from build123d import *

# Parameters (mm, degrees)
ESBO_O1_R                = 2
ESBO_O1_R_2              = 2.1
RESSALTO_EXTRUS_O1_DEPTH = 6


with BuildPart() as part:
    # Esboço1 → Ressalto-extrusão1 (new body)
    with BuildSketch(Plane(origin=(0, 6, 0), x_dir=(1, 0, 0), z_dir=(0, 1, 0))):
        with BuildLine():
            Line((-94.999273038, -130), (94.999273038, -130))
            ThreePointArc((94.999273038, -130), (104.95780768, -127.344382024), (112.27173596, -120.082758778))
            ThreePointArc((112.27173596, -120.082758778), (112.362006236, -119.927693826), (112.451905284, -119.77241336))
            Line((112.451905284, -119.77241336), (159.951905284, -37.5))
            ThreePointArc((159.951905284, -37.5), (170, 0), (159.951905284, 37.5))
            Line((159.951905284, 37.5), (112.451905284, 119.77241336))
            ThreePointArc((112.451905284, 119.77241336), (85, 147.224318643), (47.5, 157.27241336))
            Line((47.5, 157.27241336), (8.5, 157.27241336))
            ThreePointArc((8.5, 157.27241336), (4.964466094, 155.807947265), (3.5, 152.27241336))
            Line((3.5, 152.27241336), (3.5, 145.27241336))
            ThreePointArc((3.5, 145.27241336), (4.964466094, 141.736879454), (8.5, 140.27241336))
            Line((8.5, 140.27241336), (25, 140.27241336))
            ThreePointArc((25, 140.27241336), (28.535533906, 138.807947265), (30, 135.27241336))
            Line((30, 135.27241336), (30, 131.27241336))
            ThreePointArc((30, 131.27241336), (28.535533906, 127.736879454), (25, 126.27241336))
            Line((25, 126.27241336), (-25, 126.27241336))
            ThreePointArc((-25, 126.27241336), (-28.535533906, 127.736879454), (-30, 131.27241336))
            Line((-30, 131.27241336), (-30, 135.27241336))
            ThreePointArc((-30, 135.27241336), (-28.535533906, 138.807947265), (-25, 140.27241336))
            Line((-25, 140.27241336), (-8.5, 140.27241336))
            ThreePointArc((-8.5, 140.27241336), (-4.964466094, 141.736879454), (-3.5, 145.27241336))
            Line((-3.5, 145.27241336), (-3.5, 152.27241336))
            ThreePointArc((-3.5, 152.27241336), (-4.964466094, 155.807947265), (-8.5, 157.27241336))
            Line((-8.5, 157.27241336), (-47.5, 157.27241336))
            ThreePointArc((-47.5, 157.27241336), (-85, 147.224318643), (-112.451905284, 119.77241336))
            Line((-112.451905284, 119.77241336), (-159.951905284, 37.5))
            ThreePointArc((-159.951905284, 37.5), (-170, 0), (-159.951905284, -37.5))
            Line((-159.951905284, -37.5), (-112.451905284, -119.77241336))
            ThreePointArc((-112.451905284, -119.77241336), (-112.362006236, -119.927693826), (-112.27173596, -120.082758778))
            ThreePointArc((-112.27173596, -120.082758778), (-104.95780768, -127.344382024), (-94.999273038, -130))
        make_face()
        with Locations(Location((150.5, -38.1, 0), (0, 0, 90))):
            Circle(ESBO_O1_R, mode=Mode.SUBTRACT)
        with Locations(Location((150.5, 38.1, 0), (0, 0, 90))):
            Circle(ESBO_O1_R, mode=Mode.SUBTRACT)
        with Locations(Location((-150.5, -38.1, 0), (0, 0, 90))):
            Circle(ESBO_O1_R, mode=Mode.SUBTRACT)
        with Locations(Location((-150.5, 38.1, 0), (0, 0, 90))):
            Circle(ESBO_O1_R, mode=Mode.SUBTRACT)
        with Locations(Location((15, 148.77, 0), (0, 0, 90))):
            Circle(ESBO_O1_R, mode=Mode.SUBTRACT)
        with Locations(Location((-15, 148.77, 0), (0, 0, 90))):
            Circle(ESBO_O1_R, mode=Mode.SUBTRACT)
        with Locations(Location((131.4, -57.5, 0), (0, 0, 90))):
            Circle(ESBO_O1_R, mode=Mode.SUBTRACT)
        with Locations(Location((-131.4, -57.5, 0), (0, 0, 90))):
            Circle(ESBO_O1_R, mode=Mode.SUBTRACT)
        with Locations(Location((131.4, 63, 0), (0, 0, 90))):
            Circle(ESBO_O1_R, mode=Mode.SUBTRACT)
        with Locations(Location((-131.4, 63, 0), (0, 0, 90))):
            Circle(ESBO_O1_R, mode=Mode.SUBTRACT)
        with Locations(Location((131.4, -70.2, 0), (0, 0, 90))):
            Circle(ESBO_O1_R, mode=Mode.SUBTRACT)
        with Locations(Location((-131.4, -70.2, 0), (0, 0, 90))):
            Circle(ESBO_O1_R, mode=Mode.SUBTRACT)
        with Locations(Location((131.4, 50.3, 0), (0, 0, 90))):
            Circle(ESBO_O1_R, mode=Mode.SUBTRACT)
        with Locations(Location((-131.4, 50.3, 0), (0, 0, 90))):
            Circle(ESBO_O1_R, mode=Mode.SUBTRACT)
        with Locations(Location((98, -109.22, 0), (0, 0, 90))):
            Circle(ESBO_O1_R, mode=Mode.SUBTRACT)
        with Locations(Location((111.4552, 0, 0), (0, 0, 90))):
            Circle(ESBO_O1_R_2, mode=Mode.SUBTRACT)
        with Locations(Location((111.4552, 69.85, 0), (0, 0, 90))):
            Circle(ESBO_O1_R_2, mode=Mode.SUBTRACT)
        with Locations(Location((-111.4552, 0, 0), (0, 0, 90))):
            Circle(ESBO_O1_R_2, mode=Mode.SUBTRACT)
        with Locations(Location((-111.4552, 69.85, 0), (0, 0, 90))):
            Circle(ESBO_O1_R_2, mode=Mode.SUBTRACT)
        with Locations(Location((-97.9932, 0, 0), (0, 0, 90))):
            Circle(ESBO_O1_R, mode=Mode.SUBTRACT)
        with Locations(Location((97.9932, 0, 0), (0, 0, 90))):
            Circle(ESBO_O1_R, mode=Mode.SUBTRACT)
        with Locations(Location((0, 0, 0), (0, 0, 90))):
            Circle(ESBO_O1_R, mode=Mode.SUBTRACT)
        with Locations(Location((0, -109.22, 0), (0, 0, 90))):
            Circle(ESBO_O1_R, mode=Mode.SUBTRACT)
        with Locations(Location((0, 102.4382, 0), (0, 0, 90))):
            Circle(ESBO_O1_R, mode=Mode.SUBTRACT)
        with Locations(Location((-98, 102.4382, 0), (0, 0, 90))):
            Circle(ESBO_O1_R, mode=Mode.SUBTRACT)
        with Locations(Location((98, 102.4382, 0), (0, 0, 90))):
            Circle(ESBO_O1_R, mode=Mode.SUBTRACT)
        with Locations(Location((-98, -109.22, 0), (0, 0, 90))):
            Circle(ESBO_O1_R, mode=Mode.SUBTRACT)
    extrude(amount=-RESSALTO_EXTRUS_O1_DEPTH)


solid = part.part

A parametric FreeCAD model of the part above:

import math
import FreeCAD as App
import Part
import Sketcher
from FreeCAD import Vector
Q = App.Units.Quantity

doc = App.newDocument("Part")
body = doc.addObject("PartDesign::Body", "Body")

# Sketch on XZ plane
sketch1 = body.newObject("Sketcher::SketchObject", "Sketch")
sketch1.AttachmentSupport = (doc.getObject("XZ_Plane"), [""])
sketch1.MapMode = "FlatFace"
sketch1.AttachmentOffset = App.Placement(Vector(0, 0, -6), App.Rotation())
sketch1.addGeometry([
    Part.LineSegment(Vector(-95, 130, 0), Vector(95, 130, 0)),  # 0
    Part.ArcOfCircle(Part.Circle(Vector(95, 110, 0), Vector(0, 0, 1), 20), math.radians(30), math.radians(90)),  # 1
    Part.ArcOfCircle(Part.Circle(Vector(47.5, 82.27, 0), Vector(0, 0, 1), 75), math.radians(30), math.radians(30.27)),  # 2
    Part.LineSegment(Vector(112.45, 119.77, 0), Vector(159.95, 37.5, 0)),  # 3
    Part.ArcOfCircle(Part.Circle(Vector(95, 0, 0), Vector(0, 0, 1), 75), math.radians(-30), math.radians(30)),  # 4
    Part.LineSegment(Vector(159.95, -37.5, 0), Vector(112.45, -119.77, 0)),  # 5
    Part.ArcOfCircle(Part.Circle(Vector(47.5, -82.27, 0), Vector(0, 0, 1), 75), math.radians(-90), math.radians(-30)),  # 6
    Part.LineSegment(Vector(47.5, -157.27, 0), Vector(8.5, -157.27, 0)),  # 7
    Part.ArcOfCircle(Part.Circle(Vector(8.5, -152.27, 0), Vector(0, 0, 1), 5), math.radians(-180), math.radians(-90)),  # 8
    Part.LineSegment(Vector(3.5, -152.27, 0), Vector(3.5, -145.27, 0)),  # 9
    Part.ArcOfCircle(Part.Circle(Vector(8.5, -145.27, 0), Vector(0, 0, 1), 5), math.radians(90), math.radians(180)),  # 10
    Part.LineSegment(Vector(8.5, -140.27, 0), Vector(25, -140.27, 0)),  # 11
    Part.ArcOfCircle(Part.Circle(Vector(25, -135.27, 0), Vector(0, 0, 1), 5), math.radians(-90), math.radians(0)),  # 12
    Part.LineSegment(Vector(30, -135.27, 0), Vector(30, -131.27, 0)),  # 13
    Part.ArcOfCircle(Part.Circle(Vector(25, -131.27, 0), Vector(0, 0, 1), 5), math.radians(0), math.radians(90)),  # 14
    Part.LineSegment(Vector(25, -126.27, 0), Vector(-25, -126.27, 0)),  # 15
    Part.ArcOfCircle(Part.Circle(Vector(-25, -131.27, 0), Vector(0, 0, 1), 5), math.radians(90), math.radians(180)),  # 16
    Part.LineSegment(Vector(-30, -131.27, 0), Vector(-30, -135.27, 0)),  # 17
    Part.ArcOfCircle(Part.Circle(Vector(-25, -135.27, 0), Vector(0, 0, 1), 5), math.radians(-180), math.radians(-90)),  # 18
    Part.LineSegment(Vector(-25, -140.27, 0), Vector(-8.5, -140.27, 0)),  # 19
    Part.ArcOfCircle(Part.Circle(Vector(-8.5, -145.27, 0), Vector(0, 0, 1), 5), math.radians(0), math.radians(90)),  # 20
    Part.LineSegment(Vector(-3.5, -145.27, 0), Vector(-3.5, -152.27, 0)),  # 21
    Part.ArcOfCircle(Part.Circle(Vector(-8.5, -152.27, 0), Vector(0, 0, 1), 5), math.radians(-90), math.radians(0)),  # 22
    Part.LineSegment(Vector(-8.5, -157.27, 0), Vector(-47.5, -157.27, 0)),  # 23
    Part.ArcOfCircle(Part.Circle(Vector(-47.5, -82.27, 0), Vector(0, 0, 1), 75), math.radians(-150), math.radians(-90)),  # 24
    Part.LineSegment(Vector(-112.45, -119.77, 0), Vector(-159.95, -37.5, 0)),  # 25
    Part.ArcOfCircle(Part.Circle(Vector(-95, 0, 0), Vector(0, 0, 1), 75), math.radians(150), math.radians(210)),  # 26
    Part.LineSegment(Vector(-159.95, 37.5, 0), Vector(-112.45, 119.77, 0)),  # 27
    Part.ArcOfCircle(Part.Circle(Vector(-47.5, 82.27, 0), Vector(0, 0, 1), 75), math.radians(149.73), math.radians(150)),  # 28
    Part.ArcOfCircle(Part.Circle(Vector(-95, 110, 0), Vector(0, 0, 1), 20), math.radians(90), math.radians(150)),  # 29
    Part.Circle(Vector(-98, 109.22, 0), Vector(0, 0, 1), 2),  # 30
    Part.Circle(Vector(-131.4, 70.2, 0), Vector(0, 0, 1), 2),  # 31
    Part.Circle(Vector(-131.4, 57.5, 0), Vector(0, 0, 1), 2),  # 32
    Part.Circle(Vector(-150.5, 38.1, 0), Vector(0, 0, 1), 2),  # 33
    Part.Circle(Vector(-111.46, 0, 0), Vector(0, 0, 1), 2.1),  # 34
    Part.Circle(Vector(-97.99, 0, 0), Vector(0, 0, 1), 2),  # 35
    Part.Circle(Vector(0, 109.22, 0), Vector(0, 0, 1), 2),  # 36
    Part.Circle(Vector(98, 109.22, 0), Vector(0, 0, 1), 2),  # 37
    Part.Circle(Vector(131.4, 70.2, 0), Vector(0, 0, 1), 2),  # 38
    Part.Circle(Vector(131.4, 57.5, 0), Vector(0, 0, 1), 2),  # 39
    Part.Circle(Vector(0, 0, 0), Vector(0, 0, 1), 2),  # 40
    Part.Circle(Vector(150.5, 38.1, 0), Vector(0, 0, 1), 2),  # 41
    Part.Circle(Vector(97.99, 0, 0), Vector(0, 0, 1), 2),  # 42
    Part.Circle(Vector(111.46, 0, 0), Vector(0, 0, 1), 2.1),  # 43
    Part.Circle(Vector(-150.5, -38.1, 0), Vector(0, 0, 1), 2),  # 44
    Part.Circle(Vector(-131.4, -50.3, 0), Vector(0, 0, 1), 2),  # 45
    Part.Circle(Vector(-131.4, -63, 0), Vector(0, 0, 1), 2),  # 46
    Part.Circle(Vector(-111.46, -69.85, 0), Vector(0, 0, 1), 2.1),  # 47
    Part.Circle(Vector(-98, -102.44, 0), Vector(0, 0, 1), 2),  # 48
    Part.Circle(Vector(-15, -148.77, 0), Vector(0, 0, 1), 2),  # 49
    Part.Circle(Vector(131.4, -50.3, 0), Vector(0, 0, 1), 2),  # 50
    Part.Circle(Vector(150.5, -38.1, 0), Vector(0, 0, 1), 2),  # 51
    Part.Circle(Vector(111.46, -69.85, 0), Vector(0, 0, 1), 2.1),  # 52
    Part.Circle(Vector(131.4, -63, 0), Vector(0, 0, 1), 2),  # 53
    Part.Circle(Vector(0, -102.44, 0), Vector(0, 0, 1), 2),  # 54
    Part.Circle(Vector(15, -148.77, 0), Vector(0, 0, 1), 2),  # 55
    Part.Circle(Vector(98, -102.44, 0), Vector(0, 0, 1), 2),  # 56
], False)
sketch1.addConstraint([
    Sketcher.Constraint("Tangent", 0, 2, 1, 2),
    Sketcher.Constraint("Tangent", 1, 1, 2, 2),
    Sketcher.Constraint("Tangent", 2, 1, 3, 1),
    Sketcher.Constraint("Tangent", 3, 2, 4, 2),
    Sketcher.Constraint("Tangent", 4, 1, 5, 1),
    Sketcher.Constraint("Tangent", 5, 2, 6, 2),
    Sketcher.Constraint("Tangent", 6, 1, 7, 1),
    Sketcher.Constraint("Tangent", 7, 2, 8, 2),
    Sketcher.Constraint("Tangent", 8, 1, 9, 1),
    Sketcher.Constraint("Tangent", 9, 2, 10, 2),
    Sketcher.Constraint("Tangent", 10, 1, 11, 1),
    Sketcher.Constraint("Tangent", 11, 2, 12, 1),
    Sketcher.Constraint("Tangent", 12, 2, 13, 1),
    Sketcher.Constraint("Tangent", 13, 2, 14, 1),
    Sketcher.Constraint("Tangent", 14, 2, 15, 1),
    Sketcher.Constraint("Tangent", 15, 2, 16, 1),
    Sketcher.Constraint("Tangent", 16, 2, 17, 1),
    Sketcher.Constraint("Tangent", 17, 2, 18, 1),
    Sketcher.Constraint("Tangent", 18, 2, 19, 1),
    Sketcher.Constraint("Tangent", 19, 2, 20, 2),
    Sketcher.Constraint("Tangent", 20, 1, 21, 1),
    Sketcher.Constraint("Tangent", 21, 2, 22, 2),
    Sketcher.Constraint("Tangent", 22, 1, 23, 1),
    Sketcher.Constraint("Tangent", 23, 2, 24, 2),
    Sketcher.Constraint("Tangent", 24, 1, 25, 1),
    Sketcher.Constraint("Tangent", 25, 2, 26, 2),
    Sketcher.Constraint("Tangent", 26, 1, 27, 1),
    Sketcher.Constraint("Tangent", 27, 2, 28, 2),
    Sketcher.Constraint("Tangent", 28, 1, 29, 2),
    Sketcher.Constraint("Tangent", 29, 1, 0, 1),
    Sketcher.Constraint("Horizontal", 0),
    Sketcher.Constraint("Horizontal", 7),
    Sketcher.Constraint("Vertical", 9),
    Sketcher.Constraint("Horizontal", 11),
    Sketcher.Constraint("Vertical", 13),
    Sketcher.Constraint("Horizontal", 15),
    Sketcher.Constraint("Vertical", 17),
    Sketcher.Constraint("Horizontal", 19),
    Sketcher.Constraint("Vertical", 21),
    Sketcher.Constraint("Horizontal", 23),
    Sketcher.Constraint("Coincident", 40, 3, -1, 1),
    Sketcher.Constraint("Equal", 4, 6),
    Sketcher.Constraint("Equal", 8, 10),
    Sketcher.Constraint("Equal", 10, 12),
    Sketcher.Constraint("Equal", 12, 14),
    Sketcher.Constraint("Equal", 14, 16),
    Sketcher.Constraint("Equal", 16, 18),
    Sketcher.Constraint("Equal", 18, 20),
    Sketcher.Constraint("Equal", 20, 22),
    Sketcher.Constraint("Equal", 6, 24),
    Sketcher.Constraint("Equal", 24, 26),
    Sketcher.Constraint("Equal", 2, 28),
    Sketcher.Constraint("Equal", 1, 29),
    Sketcher.Constraint("Equal", 30, 31),
    Sketcher.Constraint("Equal", 31, 32),
    Sketcher.Constraint("Equal", 32, 33),
    Sketcher.Constraint("Equal", 33, 35),
    Sketcher.Constraint("Equal", 35, 36),
    Sketcher.Constraint("Equal", 36, 37),
    Sketcher.Constraint("Equal", 37, 38),
    Sketcher.Constraint("Equal", 38, 39),
    Sketcher.Constraint("Equal", 39, 40),
    Sketcher.Constraint("Equal", 40, 41),
    Sketcher.Constraint("Equal", 41, 42),
    Sketcher.Constraint("Equal", 34, 43),
    Sketcher.Constraint("Equal", 42, 44),
    Sketcher.Constraint("Equal", 44, 45),
    Sketcher.Constraint("Equal", 45, 46),
    Sketcher.Constraint("Equal", 43, 47),
    Sketcher.Constraint("Equal", 46, 48),
    Sketcher.Constraint("Equal", 48, 49),
    Sketcher.Constraint("Equal", 49, 50),
    Sketcher.Constraint("Equal", 50, 51),
    Sketcher.Constraint("Equal", 47, 52),
    Sketcher.Constraint("Equal", 51, 53),
    Sketcher.Constraint("Equal", 53, 54),
    Sketcher.Constraint("Equal", 54, 55),
    Sketcher.Constraint("Equal", 55, 56),
    Sketcher.Constraint("Symmetric", 4, 3, 26, 3, -1, 1),
    Sketcher.Constraint("Symmetric", 35, 3, 42, 3, -1, 1),
    Sketcher.Constraint("Symmetric", 34, 3, 43, 3, -1, 1),
    Sketcher.Constraint("Symmetric", 41, 3, 44, 3, -1, 1),
    Sketcher.Constraint("Symmetric", 33, 3, 51, 3, -1, 1),
    Sketcher.Constraint("Symmetric", 2, 1, 24, 1, -1, 1),
    Sketcher.Constraint("Symmetric", 5, 2, 27, 2, -1, 1),
    Sketcher.Constraint("Symmetric", 12, 3, 18, 3, -2),
    Sketcher.Constraint("Symmetric", 8, 3, 22, 3, -2),
    Sketcher.Constraint("Symmetric", 30, 3, 37, 3, -2),
    Sketcher.Constraint("Symmetric", 31, 3, 38, 3, -2),
    Sketcher.Constraint("Symmetric", 32, 3, 39, 3, -2),
    Sketcher.Constraint("Symmetric", 33, 3, 41, 3, -2),
    Sketcher.Constraint("Symmetric", 45, 3, 50, 3, -2),
    Sketcher.Constraint("Symmetric", 47, 3, 52, 3, -2),
    Sketcher.Constraint("Symmetric", 46, 3, 53, 3, -2),
    Sketcher.Constraint("Symmetric", 49, 3, 55, 3, -2),
    Sketcher.Constraint("Symmetric", 48, 3, 56, 3, -2),
    Sketcher.Constraint("Symmetric", 5, 2, 24, 1, -2),
    Sketcher.Constraint("PointOnObject", 34, 3, -1),
    Sketcher.Constraint("PointOnObject", 35, 3, -1),
    Sketcher.Constraint("PointOnObject", 36, 3, -2),
    Sketcher.Constraint("PointOnObject", 54, 3, -2),
    Sketcher.Constraint("Horizontal", 30, 3, 36, 3),
    Sketcher.Constraint("Horizontal", 48, 3, 54, 3),
    Sketcher.Constraint("Vertical", 31, 3, 32, 3),
    Sketcher.Constraint("Vertical", 32, 3, 45, 3),
    Sketcher.Constraint("Vertical", 45, 3, 46, 3),
    Sketcher.Constraint("Vertical", 34, 3, 47, 3),
    Sketcher.Constraint("Vertical", 30, 3, 48, 3),
    Sketcher.Constraint("Diameter", 30, Q("4 mm")),
    Sketcher.Constraint("Radius", 1, Q("20 mm")),
    Sketcher.Constraint("Radius", 4, Q("75 mm")),
    Sketcher.Constraint("Radius", 8, Q("5 mm")),
    Sketcher.Constraint("Diameter", 34, Q("4.2 mm")),
    Sketcher.Constraint("DistanceX", 7, 2, 7, 1, Q("39 mm")),
    Sketcher.Constraint("DistanceX", 15, 2, 15, 1, Q("50 mm")),
    Sketcher.Constraint("DistanceY", 9, 1, 9, 2, Q("7 mm")),
    Sketcher.Constraint("DistanceY", 13, 1, 13, 2, Q("4 mm")),
    Sketcher.Constraint("Angle", 3, Q("-60 deg")),
    Sketcher.Constraint("Distance", 3, Q("95 mm")),
    Sketcher.Constraint("DistanceX", 11, 1, 11, 2, Q("16.5 mm")),
    Sketcher.Constraint("DistanceY", -1, 1, 1, 3, Q("110 mm")),
    Sketcher.Constraint("DistanceX", 30, 3, -1, 1, Q("98 mm")),
    Sketcher.Constraint("DistanceY", 46, 3, -1, 1, Q("63 mm")),
    Sketcher.Constraint("DistanceX", 49, 3, -1, 1, Q("15 mm")),
    Sketcher.Constraint("DistanceX", 31, 3, -1, 1, Q("131.4 mm")),
    Sketcher.Constraint("DistanceY", -1, 1, 31, 3, Q("70.2 mm")),
    Sketcher.Constraint("DistanceY", -1, 1, 32, 3, Q("57.5 mm")),
    Sketcher.Constraint("DistanceX", 33, 3, -1, 1, Q("150.5 mm")),
    Sketcher.Constraint("DistanceY", -1, 1, 33, 3, Q("38.1 mm")),
    Sketcher.Constraint("DistanceY", 45, 3, -1, 1, Q("50.3 mm")),
    Sketcher.Constraint("DistanceY", -1, 1, 30, 3, Q("109.22 mm")),
    Sketcher.Constraint("DistanceY", 47, 3, -1, 1, Q("69.85 mm")),
    Sketcher.Constraint("DistanceY", 49, 3, -1, 1, Q("148.77 mm")),
    Sketcher.Constraint("Radius", 2, Q("75.000068 mm")),
    Sketcher.Constraint("DistanceX", 34, 3, -1, 1, Q("111.4552 mm")),
    Sketcher.Constraint("DistanceX", 35, 3, -1, 1, Q("97.9932 mm")),
    Sketcher.Constraint("DistanceY", 48, 3, -1, 1, Q("102.4382 mm")),
])
pad1 = body.newObject("PartDesign::Pad", "Pad")
pad1.Profile = sketch1
pad1.Length = 6

doc.recompute()
